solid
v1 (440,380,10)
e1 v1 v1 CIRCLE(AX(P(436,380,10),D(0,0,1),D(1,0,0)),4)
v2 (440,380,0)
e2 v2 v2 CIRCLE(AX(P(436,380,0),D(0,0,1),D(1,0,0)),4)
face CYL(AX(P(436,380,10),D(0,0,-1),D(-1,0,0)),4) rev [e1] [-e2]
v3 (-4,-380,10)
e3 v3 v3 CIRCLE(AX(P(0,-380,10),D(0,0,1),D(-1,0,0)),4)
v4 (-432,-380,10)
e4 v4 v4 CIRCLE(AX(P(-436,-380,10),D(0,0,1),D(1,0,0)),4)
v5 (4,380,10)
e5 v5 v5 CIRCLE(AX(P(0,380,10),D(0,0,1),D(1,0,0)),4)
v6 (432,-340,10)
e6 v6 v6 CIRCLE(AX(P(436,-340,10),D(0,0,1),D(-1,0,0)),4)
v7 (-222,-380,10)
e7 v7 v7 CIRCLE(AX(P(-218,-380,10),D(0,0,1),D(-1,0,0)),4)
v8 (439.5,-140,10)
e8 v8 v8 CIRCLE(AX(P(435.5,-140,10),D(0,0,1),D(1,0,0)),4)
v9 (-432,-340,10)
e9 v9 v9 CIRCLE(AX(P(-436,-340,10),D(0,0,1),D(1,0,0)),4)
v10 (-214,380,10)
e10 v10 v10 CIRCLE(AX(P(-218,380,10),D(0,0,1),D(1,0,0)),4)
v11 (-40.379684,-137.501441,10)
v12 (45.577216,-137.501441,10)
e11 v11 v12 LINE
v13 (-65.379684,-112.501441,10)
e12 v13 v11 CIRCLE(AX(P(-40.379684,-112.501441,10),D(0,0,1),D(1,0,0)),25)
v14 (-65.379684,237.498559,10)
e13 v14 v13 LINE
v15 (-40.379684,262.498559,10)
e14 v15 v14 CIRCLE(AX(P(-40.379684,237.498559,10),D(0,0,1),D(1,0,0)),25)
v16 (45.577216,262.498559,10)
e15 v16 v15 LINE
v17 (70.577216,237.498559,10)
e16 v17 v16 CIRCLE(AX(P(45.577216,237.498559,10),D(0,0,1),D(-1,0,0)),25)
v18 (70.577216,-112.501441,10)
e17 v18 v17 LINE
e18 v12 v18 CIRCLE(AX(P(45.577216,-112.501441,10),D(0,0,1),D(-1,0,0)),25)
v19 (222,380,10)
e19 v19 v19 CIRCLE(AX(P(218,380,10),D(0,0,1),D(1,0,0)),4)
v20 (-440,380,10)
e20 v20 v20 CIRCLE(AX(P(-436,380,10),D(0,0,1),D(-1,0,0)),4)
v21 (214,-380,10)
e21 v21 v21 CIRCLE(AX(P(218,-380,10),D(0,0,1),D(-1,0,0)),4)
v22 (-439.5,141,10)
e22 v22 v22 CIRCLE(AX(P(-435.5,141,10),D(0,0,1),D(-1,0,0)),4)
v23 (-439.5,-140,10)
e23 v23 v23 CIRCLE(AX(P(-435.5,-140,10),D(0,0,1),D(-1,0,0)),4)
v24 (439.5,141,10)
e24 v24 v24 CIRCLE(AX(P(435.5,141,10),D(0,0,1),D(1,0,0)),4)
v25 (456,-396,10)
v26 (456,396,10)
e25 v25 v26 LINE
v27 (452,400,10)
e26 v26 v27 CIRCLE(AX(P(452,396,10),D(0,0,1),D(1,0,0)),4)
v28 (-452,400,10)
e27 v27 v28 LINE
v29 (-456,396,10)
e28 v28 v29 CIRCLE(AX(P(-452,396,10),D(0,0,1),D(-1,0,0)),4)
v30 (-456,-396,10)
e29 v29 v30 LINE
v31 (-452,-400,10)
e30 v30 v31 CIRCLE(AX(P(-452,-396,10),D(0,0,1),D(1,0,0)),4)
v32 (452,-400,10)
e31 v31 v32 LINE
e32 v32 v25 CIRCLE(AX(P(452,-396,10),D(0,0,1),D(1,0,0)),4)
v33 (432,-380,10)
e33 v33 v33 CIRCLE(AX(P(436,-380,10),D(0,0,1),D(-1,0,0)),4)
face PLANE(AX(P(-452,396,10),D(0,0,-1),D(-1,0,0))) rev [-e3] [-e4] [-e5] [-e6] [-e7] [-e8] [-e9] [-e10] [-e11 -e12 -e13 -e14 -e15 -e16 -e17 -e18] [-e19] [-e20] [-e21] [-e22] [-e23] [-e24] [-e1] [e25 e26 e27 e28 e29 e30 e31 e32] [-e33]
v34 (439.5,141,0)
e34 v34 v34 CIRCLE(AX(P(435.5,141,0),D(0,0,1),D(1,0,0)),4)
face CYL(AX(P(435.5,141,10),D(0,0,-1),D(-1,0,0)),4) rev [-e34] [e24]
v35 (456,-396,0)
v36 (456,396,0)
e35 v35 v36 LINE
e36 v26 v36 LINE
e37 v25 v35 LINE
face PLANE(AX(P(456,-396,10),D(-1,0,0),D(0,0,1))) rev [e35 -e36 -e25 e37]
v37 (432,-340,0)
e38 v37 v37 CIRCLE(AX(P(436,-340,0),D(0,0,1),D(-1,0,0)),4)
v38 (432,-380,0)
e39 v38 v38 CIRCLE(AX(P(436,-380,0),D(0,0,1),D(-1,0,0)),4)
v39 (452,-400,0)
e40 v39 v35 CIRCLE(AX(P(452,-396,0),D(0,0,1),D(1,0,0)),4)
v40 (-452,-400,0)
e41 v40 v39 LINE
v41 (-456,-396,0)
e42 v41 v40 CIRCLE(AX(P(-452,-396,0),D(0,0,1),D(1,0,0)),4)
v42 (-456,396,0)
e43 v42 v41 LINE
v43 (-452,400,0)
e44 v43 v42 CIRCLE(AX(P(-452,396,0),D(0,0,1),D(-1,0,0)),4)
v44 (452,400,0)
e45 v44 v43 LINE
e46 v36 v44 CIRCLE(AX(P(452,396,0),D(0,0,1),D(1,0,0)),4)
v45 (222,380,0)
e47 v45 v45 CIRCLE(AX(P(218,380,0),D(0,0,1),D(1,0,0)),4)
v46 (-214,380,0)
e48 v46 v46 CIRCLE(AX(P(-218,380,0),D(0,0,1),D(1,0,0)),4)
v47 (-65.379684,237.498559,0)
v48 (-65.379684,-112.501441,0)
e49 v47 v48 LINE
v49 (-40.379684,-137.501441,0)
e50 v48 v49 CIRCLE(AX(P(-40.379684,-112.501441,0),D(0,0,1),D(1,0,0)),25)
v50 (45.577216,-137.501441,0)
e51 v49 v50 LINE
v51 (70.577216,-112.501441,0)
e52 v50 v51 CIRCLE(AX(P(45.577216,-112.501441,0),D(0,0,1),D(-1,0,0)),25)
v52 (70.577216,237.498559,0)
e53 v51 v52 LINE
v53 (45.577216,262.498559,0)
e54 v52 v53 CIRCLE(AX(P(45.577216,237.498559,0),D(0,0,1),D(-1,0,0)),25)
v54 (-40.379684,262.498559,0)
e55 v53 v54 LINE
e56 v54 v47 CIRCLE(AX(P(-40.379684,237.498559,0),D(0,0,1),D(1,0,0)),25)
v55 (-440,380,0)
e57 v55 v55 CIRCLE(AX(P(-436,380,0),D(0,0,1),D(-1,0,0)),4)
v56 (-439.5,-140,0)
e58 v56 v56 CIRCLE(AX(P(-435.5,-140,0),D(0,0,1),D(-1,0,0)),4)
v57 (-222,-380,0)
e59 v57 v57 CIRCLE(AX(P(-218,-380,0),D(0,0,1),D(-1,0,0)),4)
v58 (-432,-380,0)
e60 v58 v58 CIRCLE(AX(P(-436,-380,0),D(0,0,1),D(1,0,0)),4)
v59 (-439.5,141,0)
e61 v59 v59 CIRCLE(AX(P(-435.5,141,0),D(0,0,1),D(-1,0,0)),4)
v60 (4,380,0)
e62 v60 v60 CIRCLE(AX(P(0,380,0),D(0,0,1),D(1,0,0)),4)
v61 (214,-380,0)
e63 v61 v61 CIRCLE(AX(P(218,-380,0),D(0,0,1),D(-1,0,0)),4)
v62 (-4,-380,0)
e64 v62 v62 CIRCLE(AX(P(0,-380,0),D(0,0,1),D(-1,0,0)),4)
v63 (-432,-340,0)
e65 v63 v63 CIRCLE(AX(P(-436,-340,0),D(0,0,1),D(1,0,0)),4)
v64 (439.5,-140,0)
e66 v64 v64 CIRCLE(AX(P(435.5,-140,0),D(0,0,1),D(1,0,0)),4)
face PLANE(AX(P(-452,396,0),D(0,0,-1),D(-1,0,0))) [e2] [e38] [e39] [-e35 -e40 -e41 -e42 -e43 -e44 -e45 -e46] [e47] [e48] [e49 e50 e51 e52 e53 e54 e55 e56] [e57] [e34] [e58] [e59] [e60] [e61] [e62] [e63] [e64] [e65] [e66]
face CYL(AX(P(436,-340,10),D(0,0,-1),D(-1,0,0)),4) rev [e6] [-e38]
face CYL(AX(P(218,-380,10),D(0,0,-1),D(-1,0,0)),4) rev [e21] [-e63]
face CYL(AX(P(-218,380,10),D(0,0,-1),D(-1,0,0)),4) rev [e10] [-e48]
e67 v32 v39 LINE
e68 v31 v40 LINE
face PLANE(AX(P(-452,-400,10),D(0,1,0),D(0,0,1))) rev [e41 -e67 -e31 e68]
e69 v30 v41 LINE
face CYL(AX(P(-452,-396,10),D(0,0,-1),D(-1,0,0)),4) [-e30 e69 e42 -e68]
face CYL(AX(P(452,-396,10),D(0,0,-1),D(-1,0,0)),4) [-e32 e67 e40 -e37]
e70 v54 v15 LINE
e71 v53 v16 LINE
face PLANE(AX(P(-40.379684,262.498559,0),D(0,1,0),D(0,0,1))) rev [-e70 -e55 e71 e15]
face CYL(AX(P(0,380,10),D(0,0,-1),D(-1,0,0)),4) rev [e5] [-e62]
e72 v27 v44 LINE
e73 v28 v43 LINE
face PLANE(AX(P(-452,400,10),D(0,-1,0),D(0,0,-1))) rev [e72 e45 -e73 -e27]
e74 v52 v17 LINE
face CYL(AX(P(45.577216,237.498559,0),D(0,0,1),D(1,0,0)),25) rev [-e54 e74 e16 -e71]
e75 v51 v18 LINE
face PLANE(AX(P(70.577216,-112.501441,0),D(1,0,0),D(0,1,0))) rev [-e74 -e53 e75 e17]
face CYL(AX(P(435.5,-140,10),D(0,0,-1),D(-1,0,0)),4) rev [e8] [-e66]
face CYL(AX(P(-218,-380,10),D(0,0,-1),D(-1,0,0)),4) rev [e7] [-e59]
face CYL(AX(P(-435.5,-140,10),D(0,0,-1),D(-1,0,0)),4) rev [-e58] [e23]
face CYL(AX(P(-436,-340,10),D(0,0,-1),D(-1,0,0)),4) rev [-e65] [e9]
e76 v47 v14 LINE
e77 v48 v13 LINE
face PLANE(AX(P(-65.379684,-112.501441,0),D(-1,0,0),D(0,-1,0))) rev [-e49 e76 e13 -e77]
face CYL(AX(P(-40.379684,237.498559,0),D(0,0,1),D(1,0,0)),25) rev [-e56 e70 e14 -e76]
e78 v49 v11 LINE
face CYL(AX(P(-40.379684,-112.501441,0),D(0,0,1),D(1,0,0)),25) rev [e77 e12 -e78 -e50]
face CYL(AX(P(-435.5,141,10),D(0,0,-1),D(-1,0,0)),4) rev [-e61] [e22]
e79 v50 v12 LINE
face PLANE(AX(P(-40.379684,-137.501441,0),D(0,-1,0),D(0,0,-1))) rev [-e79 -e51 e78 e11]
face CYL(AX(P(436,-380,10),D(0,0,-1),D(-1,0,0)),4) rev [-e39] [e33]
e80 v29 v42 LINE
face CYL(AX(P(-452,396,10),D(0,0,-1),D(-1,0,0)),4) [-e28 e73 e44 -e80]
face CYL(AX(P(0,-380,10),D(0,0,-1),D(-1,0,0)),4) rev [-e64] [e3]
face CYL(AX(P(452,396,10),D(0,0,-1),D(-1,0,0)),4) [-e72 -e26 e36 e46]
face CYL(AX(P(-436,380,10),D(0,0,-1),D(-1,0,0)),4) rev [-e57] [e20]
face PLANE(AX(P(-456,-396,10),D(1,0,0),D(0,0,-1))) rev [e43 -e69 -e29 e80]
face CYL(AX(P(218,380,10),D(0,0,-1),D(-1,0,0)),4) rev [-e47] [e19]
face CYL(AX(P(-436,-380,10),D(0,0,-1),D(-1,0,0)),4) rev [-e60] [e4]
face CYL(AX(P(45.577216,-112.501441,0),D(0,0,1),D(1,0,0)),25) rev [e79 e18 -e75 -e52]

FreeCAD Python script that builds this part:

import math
import FreeCAD as App
import Part
import Sketcher
from FreeCAD import Vector

doc = App.newDocument("Part")
body = doc.addObject("PartDesign::Body", "Body")

sketch1 = body.newObject("Sketcher::SketchObject", "Sketch")
sketch1.AttachmentSupport = (doc.getObject("XY_Plane"), [""])
sketch1.MapMode = "FlatFace"
sketch1.addGeometry([
    Part.LineSegment(Vector(-452, -400, 0), Vector(452, -400, 0)),
    Part.ArcOfCircle(Part.Circle(Vector(452, -396, 0), Vector(0, 0, 1), 4), math.radians(-90), math.radians(0)),
    Part.LineSegment(Vector(456, -396, 0), Vector(456, 396, 0)),
    Part.ArcOfCircle(Part.Circle(Vector(452, 396, 0), Vector(0, 0, 1), 4), math.radians(0), math.radians(90)),
    Part.LineSegment(Vector(452, 400, 0), Vector(-452, 400, 0)),
    Part.ArcOfCircle(Part.Circle(Vector(-452, 396, 0), Vector(0, 0, 1), 4), math.radians(90), math.radians(180)),
    Part.LineSegment(Vector(-456, 396, 0), Vector(-456, -396, 0)),
    Part.ArcOfCircle(Part.Circle(Vector(-452, -396, 0), Vector(0, 0, 1), 4), math.radians(180), math.radians(270)),
    Part.Circle(Vector(-436, -380, 0), Vector(0, 0, 1), 4),
    Part.Circle(Vector(-436, -340, 0), Vector(0, 0, 1), 4),
    Part.Circle(Vector(-218, -380, 0), Vector(0, 0, 1), 4),
    Part.Circle(Vector(-435.5, -140, 0), Vector(0, 0, 1), 4),
    Part.Circle(Vector(0, -380, 0), Vector(0, 0, 1), 4),
    Part.Circle(Vector(218, -380, 0), Vector(0, 0, 1), 4),
    Part.Circle(Vector(436, -380, 0), Vector(0, 0, 1), 4),
    Part.Circle(Vector(436, -340, 0), Vector(0, 0, 1), 4),
    Part.Circle(Vector(435.5, -140, 0), Vector(0, 0, 1), 4),
    Part.Circle(Vector(-435.5, 141, 0), Vector(0, 0, 1), 4),
    Part.Circle(Vector(-436, 380, 0), Vector(0, 0, 1), 4),
    Part.Circle(Vector(-218, 380, 0), Vector(0, 0, 1), 4),
    Part.Circle(Vector(435.5, 141, 0), Vector(0, 0, 1), 4),
    Part.Circle(Vector(0, 380, 0), Vector(0, 0, 1), 4),
    Part.Circle(Vector(218, 380, 0), Vector(0, 0, 1), 4),
    Part.Circle(Vector(436, 380, 0), Vector(0, 0, 1), 4),
], False)
sketch1.addConstraint([
    Sketcher.Constraint("Tangent", 0, 2, 1, 1),
    Sketcher.Constraint("Tangent", 1, 2, 2, 1),
    Sketcher.Constraint("Tangent", 2, 2, 3, 1),
    Sketcher.Constraint("Tangent", 3, 2, 4, 1),
    Sketcher.Constraint("Tangent", 4, 2, 5, 1),
    Sketcher.Constraint("Tangent", 5, 2, 6, 1),
    Sketcher.Constraint("Tangent", 6, 2, 7, 1),
    Sketcher.Constraint("Tangent", 7, 2, 0, 1),
    Sketcher.Constraint("Horizontal", 0),
    Sketcher.Constraint("Vertical", 2),
    Sketcher.Constraint("Horizontal", 4),
    Sketcher.Constraint("Vertical", 6),
    Sketcher.Constraint("Equal", 1, 3),
    Sketcher.Constraint("Equal", 3, 5),
    Sketcher.Constraint("Equal", 5, 7),
    Sketcher.Constraint("Equal", 7, 8),
    Sketcher.Constraint("Equal", 8, 9),
    Sketcher.Constraint("Equal", 9, 10),
    Sketcher.Constraint("Equal", 10, 11),
    Sketcher.Constraint("Equal", 11, 12),
    Sketcher.Constraint("Equal", 12, 13),
    Sketcher.Constraint("Equal", 13, 14),
    Sketcher.Constraint("Equal", 14, 15),
    Sketcher.Constraint("Equal", 15, 16),
    Sketcher.Constraint("Equal", 16, 17),
    Sketcher.Constraint("Equal", 17, 18),
    Sketcher.Constraint("Equal", 18, 19),
    Sketcher.Constraint("Equal", 19, 20),
    Sketcher.Constraint("Equal", 20, 21),
    Sketcher.Constraint("Equal", 21, 22),
    Sketcher.Constraint("Equal", 22, 23),
    Sketcher.Constraint("Symmetric", 1, 3, 5, 3, -1, 1),
    Sketcher.Constraint("Symmetric", 14, 3, 18, 3, -1, 1),
    Sketcher.Constraint("Symmetric", 13, 3, 19, 3, -1, 1),
    Sketcher.Constraint("Symmetric", 12, 3, 21, 3, -1, 1),
    Sketcher.Constraint("Symmetric", 10, 3, 22, 3, -1, 1),
    Sketcher.Constraint("Symmetric", 8, 3, 23, 3, -1, 1),
    Sketcher.Constraint("Symmetric", 10, 3, 13, 3, -2),
    Sketcher.Constraint("Symmetric", 8, 3, 14, 3, -2),
    Sketcher.Constraint("Symmetric", 9, 3, 15, 3, -2),
    Sketcher.Constraint("Symmetric", 11, 3, 16, 3, -2),
    Sketcher.Constraint("Symmetric", 17, 3, 20, 3, -2),
    Sketcher.Constraint("PointOnObject", 12, 3, -2),
    Sketcher.Constraint("Horizontal", 8, 3, 10, 3),
    Sketcher.Constraint("Horizontal", 10, 3, 12, 3),
    Sketcher.Constraint("Vertical", 8, 3, 9, 3),
    Sketcher.Constraint("Vertical", 11, 3, 17, 3),
    Sketcher.Constraint("Diameter", 8, 8.0),
    Sketcher.Constraint("DistanceX", 0, 1, 0, 2, 904.0),
    Sketcher.Constraint("DistanceY", 2, 1, 2, 2, 792.0),
    Sketcher.Constraint("DistanceX", 8, 3, -1, 1, 436.0),
    Sketcher.Constraint("DistanceY", 8, 3, -1, 1, 380.0),
    Sketcher.Constraint("DistanceY", 9, 3, -1, 1, 340.0),
    Sketcher.Constraint("DistanceX", 10, 3, -1, 1, 218.0),
    Sketcher.Constraint("DistanceY", 11, 3, -1, 1, 140.0),
    Sketcher.Constraint("DistanceY", -1, 1, 17, 3, 141.0),
    Sketcher.Constraint("DistanceX", 11, 3, -1, 1, 435.5),
])
pad1 = body.newObject("PartDesign::Pad", "Pad")
pad1.Profile = sketch1
pad1.Length = 10

sketch2 = body.newObject("Sketcher::SketchObject", "Sketch001")
sketch2.AttachmentSupport = (doc.getObject("XY_Plane"), [""])
sketch2.MapMode = "FlatFace"
sketch2.AttachmentOffset = App.Placement(Vector(0, 0, 10), App.Rotation())
sketch2.addGeometry([
    Part.LineSegment(Vector(-40, -138, 0), Vector(46, -138, 0)),
    Part.ArcOfCircle(Part.Circle(Vector(46, -113, 0), Vector(0, 0, 1), 25), math.radians(-90), math.radians(0)),
    Part.LineSegment(Vector(71, -113, 0), Vector(71, 237, 0)),
    Part.ArcOfCircle(Part.Circle(Vector(46, 237, 0), Vector(0, 0, 1), 25), math.radians(0), math.radians(90)),
    Part.LineSegment(Vector(46, 262, 0), Vector(-40, 262, 0)),
    Part.ArcOfCircle(Part.Circle(Vector(-40, 237, 0), Vector(0, 0, 1), 25), math.radians(90), math.radians(180)),
    Part.LineSegment(Vector(-65, 237, 0), Vector(-65, -113, 0)),
    Part.ArcOfCircle(Part.Circle(Vector(-40, -113, 0), Vector(0, 0, 1), 25), math.radians(180), math.radians(270)),
], False)
sketch2.addConstraint([
    Sketcher.Constraint("Tangent", 0, 2, 1, 1),
    Sketcher.Constraint("Tangent", 1, 2, 2, 1),
    Sketcher.Constraint("Tangent", 2, 2, 3, 1),
    Sketcher.Constraint("Tangent", 3, 2, 4, 1),
    Sketcher.Constraint("Tangent", 4, 2, 5, 1),
    Sketcher.Constraint("Tangent", 5, 2, 6, 1),
    Sketcher.Constraint("Tangent", 6, 2, 7, 1),
    Sketcher.Constraint("Tangent", 7, 2, 0, 1),
    Sketcher.Constraint("Horizontal", 0),
    Sketcher.Constraint("Vertical", 2),
    Sketcher.Constraint("Horizontal", 4),
    Sketcher.Constraint("Vertical", 6),
    Sketcher.Constraint("Equal", 1, 3),
    Sketcher.Constraint("Equal", 3, 5),
    Sketcher.Constraint("Equal", 5, 7),
    Sketcher.Constraint("Radius", 1, 25.0),
    Sketcher.Constraint("DistanceY", 2, 1, 2, 2, 350.0),
    Sketcher.Constraint("DistanceX", 0, 1, 0, 2, 85.9569),
    Sketcher.Constraint("DistanceY", 1, 3, -1, 1, 112.501441),
    Sketcher.Constraint("DistanceX", -1, 1, 1, 3, 45.577216),
])
pocket1 = body.newObject("PartDesign::Pocket", "Pocket")
pocket1.Profile = sketch2
pocket1.Type = "ThroughAll"

doc.recompute()
